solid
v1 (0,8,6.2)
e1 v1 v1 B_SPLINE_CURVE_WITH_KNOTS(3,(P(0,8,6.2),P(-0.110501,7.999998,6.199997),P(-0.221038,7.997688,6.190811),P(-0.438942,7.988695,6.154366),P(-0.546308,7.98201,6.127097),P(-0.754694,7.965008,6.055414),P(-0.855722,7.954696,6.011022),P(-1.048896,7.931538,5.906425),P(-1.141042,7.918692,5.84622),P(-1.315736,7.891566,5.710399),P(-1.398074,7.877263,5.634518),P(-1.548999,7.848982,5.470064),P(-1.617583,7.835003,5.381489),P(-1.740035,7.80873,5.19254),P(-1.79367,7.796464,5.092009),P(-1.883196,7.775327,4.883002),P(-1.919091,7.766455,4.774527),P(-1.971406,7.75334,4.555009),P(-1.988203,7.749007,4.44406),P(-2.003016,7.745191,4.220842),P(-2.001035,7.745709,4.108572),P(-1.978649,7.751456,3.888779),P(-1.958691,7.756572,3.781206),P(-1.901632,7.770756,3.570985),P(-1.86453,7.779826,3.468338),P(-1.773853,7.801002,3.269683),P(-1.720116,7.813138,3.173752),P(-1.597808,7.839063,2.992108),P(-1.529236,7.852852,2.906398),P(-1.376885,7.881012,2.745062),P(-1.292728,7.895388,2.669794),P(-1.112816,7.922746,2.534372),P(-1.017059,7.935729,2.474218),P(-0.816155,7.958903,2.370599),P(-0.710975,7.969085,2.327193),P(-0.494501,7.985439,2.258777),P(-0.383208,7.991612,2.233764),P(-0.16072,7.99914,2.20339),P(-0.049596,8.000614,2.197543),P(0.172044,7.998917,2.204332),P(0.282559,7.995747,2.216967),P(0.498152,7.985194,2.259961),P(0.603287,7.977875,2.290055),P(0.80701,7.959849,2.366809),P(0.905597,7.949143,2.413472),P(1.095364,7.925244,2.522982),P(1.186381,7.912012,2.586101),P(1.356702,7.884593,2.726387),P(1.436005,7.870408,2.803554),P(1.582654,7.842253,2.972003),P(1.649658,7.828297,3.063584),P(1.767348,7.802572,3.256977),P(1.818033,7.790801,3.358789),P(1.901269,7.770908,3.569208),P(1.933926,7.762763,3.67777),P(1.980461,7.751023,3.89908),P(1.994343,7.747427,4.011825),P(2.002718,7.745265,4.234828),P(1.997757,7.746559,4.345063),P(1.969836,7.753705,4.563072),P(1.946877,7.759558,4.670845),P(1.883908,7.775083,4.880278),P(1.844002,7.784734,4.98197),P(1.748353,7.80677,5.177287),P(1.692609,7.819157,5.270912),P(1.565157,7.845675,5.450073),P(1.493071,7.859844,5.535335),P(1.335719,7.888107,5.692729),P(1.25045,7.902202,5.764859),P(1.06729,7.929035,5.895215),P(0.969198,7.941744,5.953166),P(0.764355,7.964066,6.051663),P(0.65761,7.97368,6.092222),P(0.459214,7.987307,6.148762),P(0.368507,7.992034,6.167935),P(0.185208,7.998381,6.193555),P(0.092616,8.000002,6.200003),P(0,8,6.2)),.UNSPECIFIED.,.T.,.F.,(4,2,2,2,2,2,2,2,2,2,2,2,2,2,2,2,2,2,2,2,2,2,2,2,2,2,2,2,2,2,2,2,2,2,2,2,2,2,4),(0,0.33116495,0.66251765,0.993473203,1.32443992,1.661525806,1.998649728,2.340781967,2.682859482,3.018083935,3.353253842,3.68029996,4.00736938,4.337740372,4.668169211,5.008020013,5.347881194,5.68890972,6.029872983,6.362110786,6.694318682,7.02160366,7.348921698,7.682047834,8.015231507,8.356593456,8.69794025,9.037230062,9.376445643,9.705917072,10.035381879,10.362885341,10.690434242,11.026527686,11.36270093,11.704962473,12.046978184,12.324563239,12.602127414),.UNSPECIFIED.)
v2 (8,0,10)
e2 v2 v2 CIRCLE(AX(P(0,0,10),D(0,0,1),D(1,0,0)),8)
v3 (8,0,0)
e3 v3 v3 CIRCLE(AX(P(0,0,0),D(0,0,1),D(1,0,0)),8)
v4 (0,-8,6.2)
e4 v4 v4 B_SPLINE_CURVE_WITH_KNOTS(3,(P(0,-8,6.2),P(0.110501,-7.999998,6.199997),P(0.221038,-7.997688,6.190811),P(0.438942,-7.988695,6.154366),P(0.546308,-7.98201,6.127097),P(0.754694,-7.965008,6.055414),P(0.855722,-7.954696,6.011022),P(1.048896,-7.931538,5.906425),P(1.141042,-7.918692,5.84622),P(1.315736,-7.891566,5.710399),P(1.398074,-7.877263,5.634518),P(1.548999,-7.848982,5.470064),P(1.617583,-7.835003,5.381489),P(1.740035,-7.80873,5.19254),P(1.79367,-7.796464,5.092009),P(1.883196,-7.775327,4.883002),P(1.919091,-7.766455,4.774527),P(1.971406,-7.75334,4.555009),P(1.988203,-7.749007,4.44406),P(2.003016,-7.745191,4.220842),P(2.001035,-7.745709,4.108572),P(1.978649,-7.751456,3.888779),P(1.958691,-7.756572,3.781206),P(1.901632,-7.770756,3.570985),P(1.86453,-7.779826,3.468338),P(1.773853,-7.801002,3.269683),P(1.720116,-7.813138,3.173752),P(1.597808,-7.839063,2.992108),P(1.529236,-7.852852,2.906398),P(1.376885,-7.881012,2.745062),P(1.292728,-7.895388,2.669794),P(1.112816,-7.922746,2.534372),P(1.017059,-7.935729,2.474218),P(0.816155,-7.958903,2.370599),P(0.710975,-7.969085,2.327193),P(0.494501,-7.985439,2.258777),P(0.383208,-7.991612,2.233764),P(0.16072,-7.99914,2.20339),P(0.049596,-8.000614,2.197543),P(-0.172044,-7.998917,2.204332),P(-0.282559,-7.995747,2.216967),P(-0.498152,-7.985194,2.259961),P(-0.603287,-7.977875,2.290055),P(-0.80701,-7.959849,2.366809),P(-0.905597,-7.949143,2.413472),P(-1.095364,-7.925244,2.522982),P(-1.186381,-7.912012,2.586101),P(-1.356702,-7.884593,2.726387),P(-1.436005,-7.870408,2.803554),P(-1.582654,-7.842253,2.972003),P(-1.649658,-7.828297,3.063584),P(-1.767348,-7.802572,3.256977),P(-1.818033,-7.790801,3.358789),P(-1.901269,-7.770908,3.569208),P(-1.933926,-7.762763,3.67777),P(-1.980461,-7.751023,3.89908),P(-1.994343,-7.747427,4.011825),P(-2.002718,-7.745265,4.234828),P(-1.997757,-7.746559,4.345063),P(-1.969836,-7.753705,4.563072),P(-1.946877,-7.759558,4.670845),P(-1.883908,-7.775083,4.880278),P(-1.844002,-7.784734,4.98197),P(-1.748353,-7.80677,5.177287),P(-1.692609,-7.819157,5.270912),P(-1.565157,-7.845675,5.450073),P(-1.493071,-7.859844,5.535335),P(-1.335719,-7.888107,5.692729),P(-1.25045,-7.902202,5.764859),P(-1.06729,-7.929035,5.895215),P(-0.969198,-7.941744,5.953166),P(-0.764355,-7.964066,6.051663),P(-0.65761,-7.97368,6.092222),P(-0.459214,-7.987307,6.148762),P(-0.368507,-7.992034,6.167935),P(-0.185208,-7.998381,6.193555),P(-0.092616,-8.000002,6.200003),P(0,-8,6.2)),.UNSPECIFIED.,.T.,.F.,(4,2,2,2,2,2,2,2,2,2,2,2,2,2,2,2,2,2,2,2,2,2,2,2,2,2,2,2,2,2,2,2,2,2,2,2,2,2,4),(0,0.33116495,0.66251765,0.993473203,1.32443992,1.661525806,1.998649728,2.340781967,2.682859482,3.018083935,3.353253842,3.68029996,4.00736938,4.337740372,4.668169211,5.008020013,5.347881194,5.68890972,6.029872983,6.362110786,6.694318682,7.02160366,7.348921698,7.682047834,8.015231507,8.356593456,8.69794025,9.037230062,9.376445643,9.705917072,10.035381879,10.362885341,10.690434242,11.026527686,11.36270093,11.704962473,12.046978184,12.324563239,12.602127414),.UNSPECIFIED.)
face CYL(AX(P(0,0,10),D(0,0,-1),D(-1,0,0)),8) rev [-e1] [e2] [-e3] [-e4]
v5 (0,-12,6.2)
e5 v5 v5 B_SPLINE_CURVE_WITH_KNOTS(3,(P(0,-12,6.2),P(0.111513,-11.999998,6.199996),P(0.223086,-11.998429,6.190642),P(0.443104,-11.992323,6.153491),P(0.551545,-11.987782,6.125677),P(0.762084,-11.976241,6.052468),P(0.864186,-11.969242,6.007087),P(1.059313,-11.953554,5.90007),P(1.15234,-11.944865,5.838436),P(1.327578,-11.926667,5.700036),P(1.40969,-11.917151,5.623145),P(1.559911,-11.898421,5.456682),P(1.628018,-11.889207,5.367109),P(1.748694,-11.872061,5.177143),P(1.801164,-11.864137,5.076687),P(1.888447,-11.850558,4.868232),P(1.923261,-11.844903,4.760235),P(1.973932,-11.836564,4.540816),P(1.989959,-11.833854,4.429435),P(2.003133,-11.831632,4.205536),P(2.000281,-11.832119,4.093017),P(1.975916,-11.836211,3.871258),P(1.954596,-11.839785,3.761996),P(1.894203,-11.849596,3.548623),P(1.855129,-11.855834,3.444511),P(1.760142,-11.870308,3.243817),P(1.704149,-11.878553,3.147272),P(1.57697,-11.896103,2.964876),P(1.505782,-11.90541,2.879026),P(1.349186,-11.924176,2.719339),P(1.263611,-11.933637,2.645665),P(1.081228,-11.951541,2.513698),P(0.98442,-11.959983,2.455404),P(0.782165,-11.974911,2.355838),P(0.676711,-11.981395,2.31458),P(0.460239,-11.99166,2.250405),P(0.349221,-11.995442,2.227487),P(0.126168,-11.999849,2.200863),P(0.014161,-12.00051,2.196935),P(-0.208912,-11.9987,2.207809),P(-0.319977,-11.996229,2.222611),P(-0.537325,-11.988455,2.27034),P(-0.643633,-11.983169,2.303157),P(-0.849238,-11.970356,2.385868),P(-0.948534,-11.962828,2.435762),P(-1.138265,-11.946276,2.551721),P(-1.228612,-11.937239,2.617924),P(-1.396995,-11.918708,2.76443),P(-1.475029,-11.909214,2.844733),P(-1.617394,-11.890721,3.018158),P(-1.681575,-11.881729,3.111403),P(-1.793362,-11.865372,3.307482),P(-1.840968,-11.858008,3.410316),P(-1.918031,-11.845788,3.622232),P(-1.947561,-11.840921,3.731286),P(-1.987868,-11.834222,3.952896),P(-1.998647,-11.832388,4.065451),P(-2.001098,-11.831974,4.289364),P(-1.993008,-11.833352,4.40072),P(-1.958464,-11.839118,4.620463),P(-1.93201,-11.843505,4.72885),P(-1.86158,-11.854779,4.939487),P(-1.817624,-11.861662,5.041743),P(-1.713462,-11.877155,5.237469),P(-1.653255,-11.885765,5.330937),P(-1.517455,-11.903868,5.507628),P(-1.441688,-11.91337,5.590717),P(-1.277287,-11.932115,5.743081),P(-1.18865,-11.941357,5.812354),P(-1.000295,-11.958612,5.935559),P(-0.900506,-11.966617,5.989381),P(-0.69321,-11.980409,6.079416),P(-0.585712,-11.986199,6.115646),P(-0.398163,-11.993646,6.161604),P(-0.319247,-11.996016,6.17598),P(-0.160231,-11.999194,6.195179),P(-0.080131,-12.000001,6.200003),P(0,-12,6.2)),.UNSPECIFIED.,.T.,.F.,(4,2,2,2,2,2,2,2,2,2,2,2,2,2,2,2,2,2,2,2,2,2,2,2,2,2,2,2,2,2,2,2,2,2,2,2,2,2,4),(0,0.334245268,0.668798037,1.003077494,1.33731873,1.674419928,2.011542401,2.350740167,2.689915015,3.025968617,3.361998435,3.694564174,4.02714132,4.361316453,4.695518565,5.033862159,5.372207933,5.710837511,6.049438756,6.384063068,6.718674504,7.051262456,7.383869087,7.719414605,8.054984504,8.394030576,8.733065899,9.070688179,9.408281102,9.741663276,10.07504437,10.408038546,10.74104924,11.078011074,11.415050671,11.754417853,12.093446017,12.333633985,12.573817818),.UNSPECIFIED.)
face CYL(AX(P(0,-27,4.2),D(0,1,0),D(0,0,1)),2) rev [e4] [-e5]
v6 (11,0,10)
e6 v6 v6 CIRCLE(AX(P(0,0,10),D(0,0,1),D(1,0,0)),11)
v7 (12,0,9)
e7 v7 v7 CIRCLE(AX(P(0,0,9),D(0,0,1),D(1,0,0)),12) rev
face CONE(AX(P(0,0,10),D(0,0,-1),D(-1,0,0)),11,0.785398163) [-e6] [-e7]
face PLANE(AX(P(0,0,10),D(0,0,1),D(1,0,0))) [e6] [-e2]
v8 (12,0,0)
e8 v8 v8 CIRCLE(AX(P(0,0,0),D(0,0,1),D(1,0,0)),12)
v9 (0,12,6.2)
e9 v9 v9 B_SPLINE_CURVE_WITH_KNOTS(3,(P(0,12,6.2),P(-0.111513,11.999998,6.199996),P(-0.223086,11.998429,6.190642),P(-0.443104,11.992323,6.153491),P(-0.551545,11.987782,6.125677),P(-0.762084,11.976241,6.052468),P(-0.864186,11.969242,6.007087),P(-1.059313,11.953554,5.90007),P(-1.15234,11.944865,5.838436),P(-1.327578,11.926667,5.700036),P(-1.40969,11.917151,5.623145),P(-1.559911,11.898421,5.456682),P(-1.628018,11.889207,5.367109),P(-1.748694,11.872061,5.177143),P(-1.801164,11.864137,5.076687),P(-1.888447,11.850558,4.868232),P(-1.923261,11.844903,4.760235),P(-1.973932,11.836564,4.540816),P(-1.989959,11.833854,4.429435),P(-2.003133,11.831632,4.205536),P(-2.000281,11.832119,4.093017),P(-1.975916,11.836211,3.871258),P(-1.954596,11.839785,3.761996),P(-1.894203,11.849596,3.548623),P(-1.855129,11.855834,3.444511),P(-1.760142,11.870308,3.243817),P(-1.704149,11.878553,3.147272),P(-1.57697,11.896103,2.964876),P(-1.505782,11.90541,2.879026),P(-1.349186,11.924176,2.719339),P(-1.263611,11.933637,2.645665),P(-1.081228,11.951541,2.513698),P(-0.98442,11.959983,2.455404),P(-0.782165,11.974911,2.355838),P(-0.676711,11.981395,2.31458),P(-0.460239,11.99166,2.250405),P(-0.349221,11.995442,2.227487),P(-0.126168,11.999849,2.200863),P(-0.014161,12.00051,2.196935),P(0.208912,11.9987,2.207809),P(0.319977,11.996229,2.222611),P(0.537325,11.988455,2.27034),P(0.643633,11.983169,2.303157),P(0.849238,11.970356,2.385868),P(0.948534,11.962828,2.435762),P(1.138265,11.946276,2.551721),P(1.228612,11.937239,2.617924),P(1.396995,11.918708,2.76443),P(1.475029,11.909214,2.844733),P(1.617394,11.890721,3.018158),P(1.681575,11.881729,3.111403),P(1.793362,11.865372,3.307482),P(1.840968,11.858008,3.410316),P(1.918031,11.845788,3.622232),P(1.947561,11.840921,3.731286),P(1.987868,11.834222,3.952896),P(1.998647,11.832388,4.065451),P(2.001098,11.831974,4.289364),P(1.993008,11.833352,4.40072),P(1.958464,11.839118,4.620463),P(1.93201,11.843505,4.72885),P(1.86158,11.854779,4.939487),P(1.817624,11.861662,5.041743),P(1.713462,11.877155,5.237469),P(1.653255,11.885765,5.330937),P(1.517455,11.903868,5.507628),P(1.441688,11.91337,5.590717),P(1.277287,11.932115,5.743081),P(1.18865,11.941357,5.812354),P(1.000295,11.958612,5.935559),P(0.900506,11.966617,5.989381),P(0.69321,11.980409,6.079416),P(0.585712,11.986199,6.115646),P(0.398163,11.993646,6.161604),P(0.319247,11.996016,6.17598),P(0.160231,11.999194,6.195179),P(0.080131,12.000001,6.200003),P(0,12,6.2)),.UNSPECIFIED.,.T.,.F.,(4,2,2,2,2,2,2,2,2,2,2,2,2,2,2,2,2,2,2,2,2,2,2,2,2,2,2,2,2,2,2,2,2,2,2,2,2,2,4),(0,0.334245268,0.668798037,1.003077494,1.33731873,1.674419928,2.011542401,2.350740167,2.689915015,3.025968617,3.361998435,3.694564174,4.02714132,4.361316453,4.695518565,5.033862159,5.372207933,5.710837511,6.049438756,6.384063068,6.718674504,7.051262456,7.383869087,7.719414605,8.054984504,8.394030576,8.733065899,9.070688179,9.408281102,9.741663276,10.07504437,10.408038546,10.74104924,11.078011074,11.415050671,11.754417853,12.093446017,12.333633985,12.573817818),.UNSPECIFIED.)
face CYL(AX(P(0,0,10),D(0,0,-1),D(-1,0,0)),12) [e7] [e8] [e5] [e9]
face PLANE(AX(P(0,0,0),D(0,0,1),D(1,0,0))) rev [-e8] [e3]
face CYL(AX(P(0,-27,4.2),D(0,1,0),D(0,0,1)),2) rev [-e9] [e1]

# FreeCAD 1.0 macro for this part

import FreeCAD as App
import Part
import Sketcher

V = App.Vector


def edges_at(feature, points):
    """Names of the edges that pass closest to the given points."""
    edges = feature.Shape.Edges
    near = lambda p: min(range(len(edges)), key=lambda i: edges[i].distToShape(Part.Vertex(*p))[0])
    return sorted({f"Edge{near(p) + 1}" for p in points})

doc = App.newDocument("Part")
params = doc.addObject("Spreadsheet::Sheet", "Params")
for row, (alias, value) in enumerate([
    ("sketch1_diameter", "24 mm"),
    ("sketch1_diameter2", "16 mm"),
    ("pad1_length", "10 mm"),
    ("chamfer_size", "1 mm"),
    ("sketch2_diameter", "4 mm"),
    ("pocket1_length", "54 mm"),
], start=1):
    params.set(f"A{row}", alias)
    params.set(f"B{row}", "=" + value)
    params.setAlias(f"B{row}", alias)

body = doc.addObject("PartDesign::Body", "Body")

sketch1 = body.newObject("Sketcher::SketchObject", "Sketch")
sketch1.AttachmentSupport = (doc.getObject("XY_Plane"), [""])
sketch1.MapMode = "FlatFace"
sketch1.addGeometry([
    Part.Circle(V(0, 0, 0), V(0, 0, 1), 12),
    Part.Circle(V(0, 0, 0), V(0, 0, 1), 8),
], False)
sketch1.addConstraint([
    Sketcher.Constraint("Coincident", 0, 3, -1, 1),
    Sketcher.Constraint("Coincident", 1, 3, -1, 1),
    Sketcher.Constraint("Diameter", 0, 24.0),
    Sketcher.Constraint("Diameter", 1, 16.0),
])
sketch1.setExpression("Constraints[2]", "Params.sketch1_diameter")
sketch1.setExpression("Constraints[3]", "Params.sketch1_diameter2")
pad1 = body.newObject("PartDesign::Pad", "Pad")
pad1.Profile = sketch1
pad1.setExpression("Length", "Params.pad1_length")
doc.recompute()

chamfer = body.newObject("PartDesign::Chamfer", "Chamfer")
chamfer.Base = (pad1, edges_at(pad1, [(-12, 0, 10)]))
chamfer.setExpression("Size", "Params.chamfer_size")

sketch2 = body.newObject("Sketcher::SketchObject", "Sketch001")
sketch2.AttachmentSupport = (doc.getObject("XZ_Plane"), [""])
sketch2.MapMode = "FlatFace"
sketch2.addGeometry(Part.Circle(V(0, 4.2, 0), V(0, 0, 1), 2), False)
sketch2.addConstraint([
    Sketcher.Constraint("PointOnObject", 0, 3, -2),
    Sketcher.Constraint("Diameter", 0, 4.0),
    Sketcher.Constraint("DistanceY", -1, 1, 0, 3, 4.2),
])
sketch2.setExpression("Constraints[1]", "Params.sketch2_diameter")
pocket1 = body.newObject("PartDesign::Pocket", "Pocket")
pocket1.Profile = sketch2
pocket1.setExpression("Length", "Params.pocket1_length")
pocket1.Midplane = True

doc.recompute()
